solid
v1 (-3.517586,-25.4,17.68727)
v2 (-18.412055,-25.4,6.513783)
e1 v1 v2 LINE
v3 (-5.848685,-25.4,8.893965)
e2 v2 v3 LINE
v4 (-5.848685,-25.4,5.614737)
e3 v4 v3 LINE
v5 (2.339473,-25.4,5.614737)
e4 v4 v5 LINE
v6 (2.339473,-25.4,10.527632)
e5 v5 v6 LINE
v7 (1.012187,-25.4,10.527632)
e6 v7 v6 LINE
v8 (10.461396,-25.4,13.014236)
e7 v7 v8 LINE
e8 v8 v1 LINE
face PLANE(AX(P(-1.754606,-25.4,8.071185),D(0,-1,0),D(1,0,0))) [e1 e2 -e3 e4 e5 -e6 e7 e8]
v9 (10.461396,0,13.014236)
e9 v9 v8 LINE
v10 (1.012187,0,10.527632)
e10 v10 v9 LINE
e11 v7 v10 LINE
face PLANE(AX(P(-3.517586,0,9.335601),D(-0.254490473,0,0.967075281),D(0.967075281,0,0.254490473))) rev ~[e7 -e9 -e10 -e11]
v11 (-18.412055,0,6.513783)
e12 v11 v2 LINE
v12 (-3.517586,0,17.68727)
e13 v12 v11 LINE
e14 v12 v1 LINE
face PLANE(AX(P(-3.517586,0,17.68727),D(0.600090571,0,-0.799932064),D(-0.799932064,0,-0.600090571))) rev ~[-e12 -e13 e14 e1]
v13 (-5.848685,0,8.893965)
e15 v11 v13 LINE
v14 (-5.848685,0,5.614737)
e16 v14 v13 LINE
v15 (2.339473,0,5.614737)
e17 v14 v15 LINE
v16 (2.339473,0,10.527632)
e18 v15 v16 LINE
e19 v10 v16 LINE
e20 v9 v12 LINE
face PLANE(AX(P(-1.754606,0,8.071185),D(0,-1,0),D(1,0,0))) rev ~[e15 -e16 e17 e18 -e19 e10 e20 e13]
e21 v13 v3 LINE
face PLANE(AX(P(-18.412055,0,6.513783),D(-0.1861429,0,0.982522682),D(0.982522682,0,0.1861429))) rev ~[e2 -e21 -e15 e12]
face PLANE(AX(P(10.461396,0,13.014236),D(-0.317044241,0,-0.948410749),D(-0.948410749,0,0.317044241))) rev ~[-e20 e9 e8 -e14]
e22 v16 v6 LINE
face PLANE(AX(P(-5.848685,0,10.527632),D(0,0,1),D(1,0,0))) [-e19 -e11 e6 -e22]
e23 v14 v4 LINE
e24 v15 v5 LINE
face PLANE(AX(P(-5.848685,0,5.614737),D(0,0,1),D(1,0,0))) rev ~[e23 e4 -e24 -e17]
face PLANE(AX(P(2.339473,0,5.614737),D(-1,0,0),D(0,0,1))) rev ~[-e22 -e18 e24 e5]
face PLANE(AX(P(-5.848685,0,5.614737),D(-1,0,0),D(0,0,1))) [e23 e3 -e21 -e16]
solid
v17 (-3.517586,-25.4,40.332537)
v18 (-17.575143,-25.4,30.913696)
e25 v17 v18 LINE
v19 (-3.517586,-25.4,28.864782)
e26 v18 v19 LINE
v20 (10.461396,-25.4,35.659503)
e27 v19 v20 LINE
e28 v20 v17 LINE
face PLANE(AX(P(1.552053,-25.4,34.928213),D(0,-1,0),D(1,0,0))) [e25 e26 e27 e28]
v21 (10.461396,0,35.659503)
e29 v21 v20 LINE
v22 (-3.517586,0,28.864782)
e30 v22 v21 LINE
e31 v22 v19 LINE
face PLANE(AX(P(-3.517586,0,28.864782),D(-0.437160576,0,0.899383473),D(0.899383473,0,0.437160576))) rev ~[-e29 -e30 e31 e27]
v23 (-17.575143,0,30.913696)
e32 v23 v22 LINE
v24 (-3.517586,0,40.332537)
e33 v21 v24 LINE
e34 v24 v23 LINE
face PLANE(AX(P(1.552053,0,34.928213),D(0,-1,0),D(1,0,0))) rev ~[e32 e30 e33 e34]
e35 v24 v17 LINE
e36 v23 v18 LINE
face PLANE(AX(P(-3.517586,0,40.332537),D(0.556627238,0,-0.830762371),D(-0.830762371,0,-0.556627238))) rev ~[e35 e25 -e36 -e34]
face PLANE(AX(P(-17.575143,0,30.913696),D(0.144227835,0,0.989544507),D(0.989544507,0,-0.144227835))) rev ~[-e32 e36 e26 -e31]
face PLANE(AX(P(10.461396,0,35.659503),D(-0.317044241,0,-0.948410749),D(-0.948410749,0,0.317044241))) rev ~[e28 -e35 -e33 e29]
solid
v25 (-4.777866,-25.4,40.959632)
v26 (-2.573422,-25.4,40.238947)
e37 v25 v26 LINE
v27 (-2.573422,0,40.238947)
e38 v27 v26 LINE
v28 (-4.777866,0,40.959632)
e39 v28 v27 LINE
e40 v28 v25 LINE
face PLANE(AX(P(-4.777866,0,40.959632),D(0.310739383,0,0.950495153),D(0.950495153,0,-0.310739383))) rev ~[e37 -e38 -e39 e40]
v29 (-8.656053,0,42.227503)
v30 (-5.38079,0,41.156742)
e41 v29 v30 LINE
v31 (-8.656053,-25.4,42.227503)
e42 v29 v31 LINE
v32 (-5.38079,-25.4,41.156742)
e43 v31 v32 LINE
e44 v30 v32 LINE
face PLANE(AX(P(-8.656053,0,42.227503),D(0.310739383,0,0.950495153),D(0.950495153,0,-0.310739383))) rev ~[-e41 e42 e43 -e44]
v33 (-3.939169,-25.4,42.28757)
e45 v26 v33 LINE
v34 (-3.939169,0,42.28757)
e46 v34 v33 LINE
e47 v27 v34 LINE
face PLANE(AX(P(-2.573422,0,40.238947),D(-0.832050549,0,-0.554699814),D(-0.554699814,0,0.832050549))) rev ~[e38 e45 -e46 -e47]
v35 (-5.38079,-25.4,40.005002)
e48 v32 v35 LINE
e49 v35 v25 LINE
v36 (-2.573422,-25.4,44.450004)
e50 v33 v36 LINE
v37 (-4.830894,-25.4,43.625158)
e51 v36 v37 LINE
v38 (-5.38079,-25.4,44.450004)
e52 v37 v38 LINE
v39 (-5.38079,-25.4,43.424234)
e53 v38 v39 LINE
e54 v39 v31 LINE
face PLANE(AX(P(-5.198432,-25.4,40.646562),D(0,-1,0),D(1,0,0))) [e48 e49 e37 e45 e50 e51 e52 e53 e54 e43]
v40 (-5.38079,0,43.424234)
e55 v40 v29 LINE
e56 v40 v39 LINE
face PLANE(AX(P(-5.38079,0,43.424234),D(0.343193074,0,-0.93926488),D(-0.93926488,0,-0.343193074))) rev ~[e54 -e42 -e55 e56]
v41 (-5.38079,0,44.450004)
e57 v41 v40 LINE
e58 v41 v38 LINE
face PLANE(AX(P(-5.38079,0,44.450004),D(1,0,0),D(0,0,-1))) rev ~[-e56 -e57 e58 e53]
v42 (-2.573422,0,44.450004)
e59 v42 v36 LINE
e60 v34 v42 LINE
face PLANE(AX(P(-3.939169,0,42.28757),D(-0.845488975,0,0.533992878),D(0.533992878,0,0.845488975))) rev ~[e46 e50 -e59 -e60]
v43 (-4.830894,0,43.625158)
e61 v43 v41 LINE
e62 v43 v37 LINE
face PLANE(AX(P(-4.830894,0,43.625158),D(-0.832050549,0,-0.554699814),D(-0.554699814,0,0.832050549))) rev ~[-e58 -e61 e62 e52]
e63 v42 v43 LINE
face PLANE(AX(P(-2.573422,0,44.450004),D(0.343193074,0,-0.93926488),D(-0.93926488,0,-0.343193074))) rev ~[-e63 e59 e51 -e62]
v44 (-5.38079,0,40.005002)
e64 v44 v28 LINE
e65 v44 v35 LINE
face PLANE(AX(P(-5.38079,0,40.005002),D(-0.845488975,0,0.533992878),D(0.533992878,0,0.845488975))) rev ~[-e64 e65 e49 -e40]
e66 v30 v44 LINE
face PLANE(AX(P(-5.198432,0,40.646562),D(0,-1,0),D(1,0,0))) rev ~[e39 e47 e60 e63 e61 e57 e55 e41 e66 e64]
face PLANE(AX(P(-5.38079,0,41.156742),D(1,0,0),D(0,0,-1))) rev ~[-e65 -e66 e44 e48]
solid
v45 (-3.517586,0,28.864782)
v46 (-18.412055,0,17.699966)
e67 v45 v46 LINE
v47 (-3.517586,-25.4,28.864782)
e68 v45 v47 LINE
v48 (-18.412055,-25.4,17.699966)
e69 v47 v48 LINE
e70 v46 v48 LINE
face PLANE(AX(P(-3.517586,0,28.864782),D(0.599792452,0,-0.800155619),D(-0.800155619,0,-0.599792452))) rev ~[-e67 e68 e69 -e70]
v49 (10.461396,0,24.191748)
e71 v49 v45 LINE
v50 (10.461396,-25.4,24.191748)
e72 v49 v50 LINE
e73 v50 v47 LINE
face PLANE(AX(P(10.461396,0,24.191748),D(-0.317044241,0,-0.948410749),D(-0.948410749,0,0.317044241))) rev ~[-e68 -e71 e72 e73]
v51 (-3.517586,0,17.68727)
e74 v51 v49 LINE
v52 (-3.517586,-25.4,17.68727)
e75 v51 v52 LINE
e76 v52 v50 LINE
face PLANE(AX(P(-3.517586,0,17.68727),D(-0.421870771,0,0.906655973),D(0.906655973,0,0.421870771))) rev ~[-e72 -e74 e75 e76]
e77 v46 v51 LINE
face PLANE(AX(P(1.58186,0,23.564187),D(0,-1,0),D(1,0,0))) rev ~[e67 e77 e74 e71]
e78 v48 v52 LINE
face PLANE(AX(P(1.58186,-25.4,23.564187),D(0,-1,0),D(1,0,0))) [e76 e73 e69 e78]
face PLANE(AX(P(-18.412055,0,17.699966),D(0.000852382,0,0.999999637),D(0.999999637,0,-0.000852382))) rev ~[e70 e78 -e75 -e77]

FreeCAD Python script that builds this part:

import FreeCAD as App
import Part
import Sketcher
Q = App.Units.Quantity


def add_polygon(sketch, points):
    """Adds a closed chain of lines whose ends are joined by coincident constraints."""
    first, n = sketch.GeometryCount, len(points)
    for a, b in zip(points, points[1:] + points[:1]):
        sketch.addGeometry(Part.LineSegment(App.Vector(*a, 0), App.Vector(*b, 0)), False)
    for i in range(n):
        sketch.addConstraint(Sketcher.Constraint("Coincident", first + i, 2, first + (i + 1) % n, 1))

doc = App.newDocument("Part")
body = doc.addObject("PartDesign::Body", "Body")

sketch1 = doc.addObject("Sketcher::SketchObject", "Sketch")
body.addObject(sketch1)
sketch1.AttachmentSupport = (doc.XZ_Plane, [""])
sketch1.MapMode = "FlatFace"
add_polygon(sketch1, [(10.461396, 35.659503), (-3.517586, 40.332537), (-17.575143, 30.913696), (-3.517586, 28.864782)])
sketch1.addConstraint(Sketcher.Constraint("Vertical", 0, 2, 2, 2))
sketch1.addConstraint(Sketcher.Constraint("Distance", 2, Q("14.206089 mm")))
sketch1.addConstraint(Sketcher.Constraint("Distance", 3, Q("15.542849 mm")))
sketch1.addConstraint(Sketcher.Constraint("DistanceY", 1, 2, 0, 2, Q("9.418841 mm")))
sketch1.addConstraint(Sketcher.Constraint("DistanceX", 0, 2, 3, 2, Q("13.978982 mm")))
sketch1.addConstraint(Sketcher.Constraint("DistanceX", 1, 2, 3, 2, Q("28.036539 mm")))
sketch1.addConstraint(Sketcher.Constraint("DistanceX", 0, 2, -1, 1, Q("3.517586 mm")))
sketch1.addConstraint(Sketcher.Constraint("DistanceY", -1, 1, 0, 2, Q("40.332537 mm")))
pad1 = doc.addObject("PartDesign::Pad", "Pad")
body.addObject(pad1)
pad1.Profile = sketch1
pad1.Length = Q("1 in")
body2 = doc.addObject("PartDesign::Body", "Body001")

sketch2 = doc.addObject("Sketcher::SketchObject", "Sketch001")
body2.addObject(sketch2)
sketch2.AttachmentSupport = (doc.getObject("XZ_Plane001"), [""])
sketch2.MapMode = "FlatFace"
add_polygon(sketch2, [(10.461396, 13.014236), (-3.517586, 17.68727), (-18.412055, 6.513783), (-3.517586, 9.335601)])
sketch2.addConstraint(Sketcher.Constraint("Vertical", 0, 2, 2, 2))
sketch2.addConstraint(Sketcher.Constraint("DistanceY", -1, 1, 2, 2, Q("9.335601 mm")))
sketch2.addConstraint(Sketcher.Constraint("DistanceY", -1, 1, 0, 2, Q("17.68727 mm")))
sketch2.addConstraint(Sketcher.Constraint("DistanceX", 1, 2, 0, 2, Q("14.894469 mm")))
sketch2.addConstraint(Sketcher.Constraint("DistanceX", 2, 2, 3, 2, Q("13.978982 mm")))
sketch2.addConstraint(Sketcher.Constraint("Distance", 0, Q("14.739375 mm")))
sketch2.addConstraint(Sketcher.Constraint("Distance", 1, Q("18.619668 mm")))
sketch2.addConstraint(Sketcher.Constraint("DistanceX", 0, 2, -1, 1, Q("3.517586 mm")))
pad2 = doc.addObject("PartDesign::Pad", "Pad001")
body2.addObject(pad2)
pad2.Profile = sketch2
pad2.Length = Q("1 in")

sketch3 = doc.addObject("Sketcher::SketchObject", "Sketch002")
body2.addObject(sketch3)
sketch3.AttachmentSupport = (doc.getObject("XZ_Plane001"), [""])
sketch3.MapMode = "FlatFace"
add_polygon(sketch3, [(-5.848685, 10.527632), (-5.848685, 5.614737), (2.339473, 5.614737), (2.339473, 10.527632)])
sketch3.addConstraint(Sketcher.Constraint("Vertical", 0))
sketch3.addConstraint(Sketcher.Constraint("Horizontal", 1))
sketch3.addConstraint(Sketcher.Constraint("Vertical", 2))
sketch3.addConstraint(Sketcher.Constraint("Horizontal", 3))
sketch3.addConstraint(Sketcher.Constraint("DistanceX", 1, 1, 1, 2, Q("8.188158 mm")))
sketch3.addConstraint(Sketcher.Constraint("DistanceY", 0, 2, 0, 1, Q("4.912895 mm")))
sketch3.addConstraint(Sketcher.Constraint("DistanceX", 0, 2, -1, 1, Q("5.848685 mm")))
sketch3.addConstraint(Sketcher.Constraint("DistanceY", -1, 1, 0, 2, Q("5.614737 mm")))
pad3 = doc.addObject("PartDesign::Pad", "Pad002")
body2.addObject(pad3)
pad3.Profile = sketch3
pad3.Length = Q("1 in")
body3 = doc.addObject("PartDesign::Body", "Body002")

sketch4 = doc.addObject("Sketcher::SketchObject", "Sketch003")
body3.addObject(sketch4)
sketch4.AttachmentSupport = (doc.getObject("XZ_Plane002"), [""])
sketch4.MapMode = "FlatFace"
add_polygon(sketch4, [(10.461396, 24.191748), (-3.517586, 28.864782), (-18.412055, 17.699966), (-3.517586, 17.68727)])
sketch4.addConstraint(Sketcher.Constraint("Vertical", 0, 2, 2, 2))
sketch4.addConstraint(Sketcher.Constraint("DistanceY", 2, 2, 1, 2, Q("0.0004998 in")))
sketch4.addConstraint(Sketcher.Constraint("DistanceY", -1, 1, 2, 2, Q("17.68727 mm")))
sketch4.addConstraint(Sketcher.Constraint("DistanceY", -1, 1, 3, 2, Q("24.191748 mm")))
sketch4.addConstraint(Sketcher.Constraint("DistanceX", 1, 2, 0, 2, Q("14.894469 mm")))
sketch4.addConstraint(Sketcher.Constraint("DistanceY", 2, 2, 0, 2, Q("11.177512 mm")))
sketch4.addConstraint(Sketcher.Constraint("DistanceX", 0, 2, 3, 2, Q("13.978982 mm")))
sketch4.addConstraint(Sketcher.Constraint("DistanceX", 0, 2, -1, 1, Q("3.517586 mm")))
pad4 = doc.addObject("PartDesign::Pad", "Pad003")
body3.addObject(pad4)
pad4.Profile = sketch4
pad4.Length = Q("1 in")
body4 = doc.addObject("PartDesign::Body", "Body003")

sketch5 = doc.addObject("Sketcher::SketchObject", "Sketch004")
body4.addObject(sketch5)
sketch5.AttachmentSupport = (doc.getObject("XZ_Plane003"), [""])
sketch5.MapMode = "FlatFace"
add_polygon(sketch5, [(-5.38079, 41.156742), (-5.38079, 40.005002), (-4.777866, 40.959632), (-2.573422, 40.238947), (-3.939169, 42.28757), (-2.573422, 44.450004), (-4.830894, 43.625158), (-5.38079, 44.450004), (-5.38079, 43.424234), (-8.656053, 42.227503)])
sketch5.addConstraint(Sketcher.Constraint("Vertical", 0))
sketch5.addConstraint(Sketcher.Constraint("Vertical", 7))
sketch5.addConstraint(Sketcher.Constraint("Parallel", 1, 4))
sketch5.addConstraint(Sketcher.Constraint("Parallel", 3, 6))
sketch5.addConstraint(Sketcher.Constraint("Parallel", 5, 8))
sketch5.addConstraint(Sketcher.Constraint("Parallel", 2, 9))
sketch5.addConstraint(Sketcher.Constraint("Horizontal", 4, 2, 6, 2))
sketch5.addConstraint(Sketcher.Constraint("Vertical", 2, 2, 4, 2))
sketch5.addConstraint(Sketcher.Constraint("Vertical", 0, 2, 6, 2))
sketch5.addConstraint(Sketcher.Constraint("DistanceY", -1, 1, 4, 2, Q("1.7500001 in")))
sketch5.addConstraint(Sketcher.Constraint("DistanceY", -1, 1, 0, 2, Q("1.5750001 in")))
sketch5.addConstraint(Sketcher.Constraint("DistanceY", -1, 1, 8, 2, Q("1.6625001 in")))
sketch5.addConstraint(Sketcher.Constraint("DistanceY", 0, 2, 0, 1, Q("1.15174 mm")))
sketch5.addConstraint(Sketcher.Constraint("DistanceY", 7, 2, 7, 1, Q("1.02577 mm")))
sketch5.addConstraint(Sketcher.Constraint("Distance", 2, Q("2.319259 mm")))
sketch5.addConstraint(Sketcher.Constraint("Distance", 6, Q("0.991341 mm")))
sketch5.addConstraint(Sketcher.Constraint("Distance", 8, Q("3.487049 mm")))
sketch5.addConstraint(Sketcher.Constraint("DistanceX", 0, 2, -1, 1, Q("5.38079 mm")))
sketch5.addConstraint(Sketcher.Constraint("DistanceY", -1, 1, 1, 2, Q("40.959632 mm")))
sketch5.addConstraint(Sketcher.Constraint("DistanceX", 2, 2, -1, 1, Q("2.573422 mm")))
pad5 = doc.addObject("PartDesign::Pad", "Pad004")
body4.addObject(pad5)
pad5.Profile = sketch5
pad5.Length = Q("1 in")

doc.recompute()
